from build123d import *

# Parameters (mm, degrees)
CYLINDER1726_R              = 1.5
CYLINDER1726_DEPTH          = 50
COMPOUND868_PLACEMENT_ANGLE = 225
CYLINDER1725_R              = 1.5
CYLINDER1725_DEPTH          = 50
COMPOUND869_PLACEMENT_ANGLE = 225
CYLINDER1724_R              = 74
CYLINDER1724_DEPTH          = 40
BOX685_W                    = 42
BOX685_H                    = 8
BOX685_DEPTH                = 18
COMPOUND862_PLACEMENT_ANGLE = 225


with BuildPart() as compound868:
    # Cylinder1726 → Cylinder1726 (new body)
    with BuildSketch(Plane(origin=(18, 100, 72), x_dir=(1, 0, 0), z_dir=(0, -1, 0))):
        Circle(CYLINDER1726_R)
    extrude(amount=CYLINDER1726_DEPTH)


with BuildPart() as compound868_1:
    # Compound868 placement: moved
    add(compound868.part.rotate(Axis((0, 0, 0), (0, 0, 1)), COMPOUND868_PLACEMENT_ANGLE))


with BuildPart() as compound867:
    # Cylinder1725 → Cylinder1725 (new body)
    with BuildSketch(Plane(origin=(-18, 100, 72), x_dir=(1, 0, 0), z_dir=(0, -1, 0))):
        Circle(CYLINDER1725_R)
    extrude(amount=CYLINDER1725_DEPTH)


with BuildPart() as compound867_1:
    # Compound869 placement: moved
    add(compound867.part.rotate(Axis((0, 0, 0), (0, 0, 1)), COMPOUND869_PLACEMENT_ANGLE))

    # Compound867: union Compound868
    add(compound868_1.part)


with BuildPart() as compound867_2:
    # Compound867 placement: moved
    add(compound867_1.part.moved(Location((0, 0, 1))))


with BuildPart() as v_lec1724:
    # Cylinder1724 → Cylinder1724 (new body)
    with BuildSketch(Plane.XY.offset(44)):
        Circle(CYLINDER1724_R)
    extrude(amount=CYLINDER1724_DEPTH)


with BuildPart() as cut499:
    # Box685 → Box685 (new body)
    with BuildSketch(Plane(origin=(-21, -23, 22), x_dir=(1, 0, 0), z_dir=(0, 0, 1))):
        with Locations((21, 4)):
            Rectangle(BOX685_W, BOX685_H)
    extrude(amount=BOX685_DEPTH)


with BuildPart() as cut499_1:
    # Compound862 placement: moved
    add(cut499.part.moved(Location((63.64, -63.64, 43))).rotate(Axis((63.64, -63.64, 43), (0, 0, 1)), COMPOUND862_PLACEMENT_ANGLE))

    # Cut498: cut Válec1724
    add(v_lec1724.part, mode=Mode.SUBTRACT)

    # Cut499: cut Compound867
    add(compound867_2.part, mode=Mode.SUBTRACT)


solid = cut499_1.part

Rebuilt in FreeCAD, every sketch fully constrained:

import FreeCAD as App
import Part
import Sketcher

V = App.Vector
Q = App.Units.Quantity

doc = App.newDocument("Part")
params = doc.addObject("Spreadsheet::Sheet", "Params")
for row, (alias, value) in enumerate([
    ("sketch1_diameter", "3 mm"),
    ("pad1_length", "50 mm"),
    ("sketch2_diameter", "3 mm"),
    ("pad2_length", "50 mm"),
    ("sketch3_diameter", "148 mm"),
    ("pad3_length", "40 mm"),
    ("sketch4_width", "42 mm"),
    ("sketch4_height", "8 mm"),
    ("pad4_length", "18 mm"),
], start=1):
    params.set(f"A{row}", alias)
    params.set(f"B{row}", "=" + value)
    params.setAlias(f"B{row}", alias)

body = doc.addObject("PartDesign::Body", "Body")

# Sketch on XZ plane
sketch1 = doc.addObject("Sketcher::SketchObject", "Sketch")
body.addObject(sketch1)
sketch1.AttachmentSupport = (doc.XZ_Plane, [""])
sketch1.MapMode = "FlatFace"
sketch1.AttachmentOffset = App.Placement(V(0, 0, -100), App.Rotation())
sketch1.addGeometry(Part.Circle(V(18, 72, 0), V(0, 0, 1), 1.5), False)
sketch1.addConstraint(Sketcher.Constraint("Diameter", 0, Q("3 mm")))
sketch1.addConstraint(Sketcher.Constraint("DistanceX", -1, 1, 0, 3, Q("18 mm")))
sketch1.addConstraint(Sketcher.Constraint("DistanceY", -1, 1, 0, 3, Q("72 mm")))
sketch1.setExpression("Constraints[0]", "Params.sketch1_diameter")
pad1 = doc.addObject("PartDesign::Pad", "Pad")
body.addObject(pad1)
pad1.Profile = sketch1
pad1.setExpression("Length", "Params.pad1_length")
body2 = doc.addObject("PartDesign::Body", "Body001")
doc.recompute()

body.Placement = App.Placement(V(0, 0, 0), App.Rotation(V(0, 0, 1), 225))
boolean = doc.addObject("PartDesign::Boolean", "Boolean")
body2.addObject(boolean)
boolean.Type = "Fuse"
boolean.addObjects([body])
body3 = doc.addObject("PartDesign::Body", "Body002")

# Sketch on XZ plane
sketch2 = doc.addObject("Sketcher::SketchObject", "Sketch001")
body3.addObject(sketch2)
sketch2.AttachmentSupport = (doc.getObject("XZ_Plane002"), [""])
sketch2.MapMode = "FlatFace"
sketch2.AttachmentOffset = App.Placement(V(0, 0, -100), App.Rotation())
sketch2.addGeometry(Part.Circle(V(-18, 72, 0), V(0, 0, 1), 1.5), False)
sketch2.addConstraint(Sketcher.Constraint("Diameter", 0, Q("3 mm")))
sketch2.addConstraint(Sketcher.Constraint("DistanceX", 0, 3, -1, 1, Q("18 mm")))
sketch2.addConstraint(Sketcher.Constraint("DistanceY", -1, 1, 0, 3, Q("72 mm")))
sketch2.setExpression("Constraints[0]", "Params.sketch2_diameter")
pad2 = doc.addObject("PartDesign::Pad", "Pad001")
body3.addObject(pad2)
pad2.Profile = sketch2
pad2.setExpression("Length", "Params.pad2_length")
body4 = doc.addObject("PartDesign::Body", "Body003")
body4.AllowCompound = True
doc.recompute()

body3.Placement = App.Placement(V(0, 0, 0), App.Rotation(V(0, 0, 1), 225))
boolean2 = doc.addObject("PartDesign::Boolean", "Boolean001")
body4.addObject(boolean2)
boolean2.Type = "Fuse"
boolean2.addObjects([body3])
doc.recompute()

boolean3 = doc.addObject("PartDesign::Boolean", "Boolean002")
body4.addObject(boolean3)
boolean3.Type = "Fuse"
boolean3.addObjects([body2])
body5 = doc.addObject("PartDesign::Body", "Body004")
body5.AllowCompound = True
doc.recompute()

body4.Placement = App.Placement(V(0, 0, 1), App.Rotation(V(0, 0, 1), 0))
boolean4 = doc.addObject("PartDesign::Boolean", "Boolean003")
body5.addObject(boolean4)
boolean4.Type = "Fuse"
boolean4.addObjects([body4])
body6 = doc.addObject("PartDesign::Body", "Body005")

# Sketch on XY plane
sketch3 = doc.addObject("Sketcher::SketchObject", "Sketch002")
body6.addObject(sketch3)
sketch3.AttachmentSupport = (doc.getObject("XY_Plane005"), [""])
sketch3.MapMode = "FlatFace"
sketch3.AttachmentOffset = App.Placement(V(0, 0, 44), App.Rotation())
sketch3.addGeometry(Part.Circle(V(0, 0, 0), V(0, 0, 1), 74), False)
sketch3.addConstraint(Sketcher.Constraint("Coincident", 0, 3, -1, 1))
sketch3.addConstraint(Sketcher.Constraint("Diameter", 0, Q("148 mm")))
sketch3.setExpression("Constraints[1]", "Params.sketch3_diameter")
pad3 = doc.addObject("PartDesign::Pad", "Pad002")
body6.addObject(pad3)
pad3.Profile = sketch3
pad3.setExpression("Length", "Params.pad3_length")
body7 = doc.addObject("PartDesign::Body", "Body006")

# Sketch on XY plane
sketch4 = doc.addObject("Sketcher::SketchObject", "Sketch003")
body7.addObject(sketch4)
sketch4.AttachmentSupport = (doc.getObject("XY_Plane006"), [""])
sketch4.MapMode = "FlatFace"
sketch4.AttachmentOffset = App.Placement(V(0, 0, 22), App.Rotation())
sketch4.addGeometry(Part.LineSegment(V(-21, -15, 0), V(-21, -23, 0)), False)
sketch4.addGeometry(Part.LineSegment(V(-21, -23, 0), V(21, -23, 0)), False)
sketch4.addGeometry(Part.LineSegment(V(21, -23, 0), V(21, -15, 0)), False)
sketch4.addGeometry(Part.LineSegment(V(21, -15, 0), V(-21, -15, 0)), False)
sketch4.addConstraint(Sketcher.Constraint("Coincident", 0, 2, 1, 1))
sketch4.addConstraint(Sketcher.Constraint("Coincident", 1, 2, 2, 1))
sketch4.addConstraint(Sketcher.Constraint("Coincident", 2, 2, 3, 1))
sketch4.addConstraint(Sketcher.Constraint("Coincident", 3, 2, 0, 1))
sketch4.addConstraint(Sketcher.Constraint("Vertical", 0))
sketch4.addConstraint(Sketcher.Constraint("Horizontal", 1))
sketch4.addConstraint(Sketcher.Constraint("Vertical", 2))
sketch4.addConstraint(Sketcher.Constraint("Horizontal", 3))
sketch4.addConstraint(Sketcher.Constraint("DistanceX", 1, 1, 1, 2, Q("42 mm")))
sketch4.addConstraint(Sketcher.Constraint("DistanceY", 0, 2, 0, 1, Q("8 mm")))
sketch4.addConstraint(Sketcher.Constraint("DistanceX", 0, 2, -1, 1, Q("21 mm")))
sketch4.addConstraint(Sketcher.Constraint("DistanceY", 0, 2, -1, 1, Q("23 mm")))
sketch4.setExpression("Constraints[8]", "Params.sketch4_width")
sketch4.setExpression("Constraints[9]", "Params.sketch4_height")
pad4 = doc.addObject("PartDesign::Pad", "Pad003")
body7.addObject(pad4)
pad4.Profile = sketch4
pad4.setExpression("Length", "Params.pad4_length")
body8 = doc.addObject("PartDesign::Body", "Body007")
doc.recompute()

body7.Placement = App.Placement(V(63.64, -63.64, 43), App.Rotation(V(0, 0, 1), 225))
boolean5 = doc.addObject("PartDesign::Boolean", "Boolean004")
body8.addObject(boolean5)
boolean5.Type = "Fuse"
boolean5.addObjects([body7])
doc.recompute()

boolean6 = doc.addObject("PartDesign::Boolean", "Boolean005")
body8.addObject(boolean6)
boolean6.Type = "Cut"
boolean6.addObjects([body6])
doc.recompute()

boolean7 = doc.addObject("PartDesign::Boolean", "Boolean006")
body8.addObject(boolean7)
boolean7.Type = "Cut"
boolean7.addObjects([body5])

doc.recompute()
